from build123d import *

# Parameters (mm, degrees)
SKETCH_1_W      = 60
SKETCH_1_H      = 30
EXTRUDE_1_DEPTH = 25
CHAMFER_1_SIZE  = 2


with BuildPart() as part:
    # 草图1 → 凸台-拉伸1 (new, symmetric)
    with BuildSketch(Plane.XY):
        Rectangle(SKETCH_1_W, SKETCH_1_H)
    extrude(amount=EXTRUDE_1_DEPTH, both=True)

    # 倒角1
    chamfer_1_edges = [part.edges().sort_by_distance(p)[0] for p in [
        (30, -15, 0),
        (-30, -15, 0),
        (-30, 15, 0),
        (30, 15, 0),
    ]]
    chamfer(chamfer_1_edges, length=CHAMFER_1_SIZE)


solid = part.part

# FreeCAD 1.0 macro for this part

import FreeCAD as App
import Part
import Sketcher

V = App.Vector
Q = App.Units.Quantity


def edges_at(feature, points):
    """Names of the edges that pass closest to the given points."""
    edges = feature.Shape.Edges
    near = lambda p: min(range(len(edges)), key=lambda i: edges[i].distToShape(Part.Vertex(*p))[0])
    return sorted({f"Edge{near(p) + 1}" for p in points})


def add_polygon(sketch, points):
    """Adds a closed chain of lines whose ends are joined by coincident constraints."""
    first, n = sketch.GeometryCount, len(points)
    for a, b in zip(points, points[1:] + points[:1]):
        sketch.addGeometry(Part.LineSegment(App.Vector(*a, 0), App.Vector(*b, 0)), False)
    for i in range(n):
        sketch.addConstraint(Sketcher.Constraint("Coincident", first + i, 2, first + (i + 1) % n, 1))

doc = App.newDocument("Part")
body = doc.addObject("PartDesign::Body", "Body")

sketch1 = doc.addObject("Sketcher::SketchObject", "Sketch")
body.addObject(sketch1)
sketch1.AttachmentSupport = (doc.XY_Plane, [""])
sketch1.MapMode = "FlatFace"
add_polygon(sketch1, [(-30, 15), (-30, -15), (30, -15), (30, 15)])
sketch1.addConstraint(Sketcher.Constraint("Vertical", 0))
sketch1.addConstraint(Sketcher.Constraint("Horizontal", 1))
sketch1.addConstraint(Sketcher.Constraint("Vertical", 2))
sketch1.addConstraint(Sketcher.Constraint("Horizontal", 3))
sketch1.addConstraint(Sketcher.Constraint("Symmetric", 0, 2, 2, 2, -1, 1))
sketch1.addConstraint(Sketcher.Constraint("DistanceX", 1, 1, 1, 2, Q("60 mm")))
sketch1.addConstraint(Sketcher.Constraint("DistanceY", 0, 2, 0, 1, Q("30 mm")))
pad1 = doc.addObject("PartDesign::Pad", "Pad")
body.addObject(pad1)
pad1.Profile = sketch1
pad1.Length = 50
pad1.Midplane = True
doc.recompute()

chamfer = doc.addObject("PartDesign::Chamfer", "Chamfer")
body.addObject(chamfer)
chamfer.Base = (pad1, edges_at(pad1, [
    (30, -15, 0),
    (-30, -15, 0),
    (-30, 15, 0),
    (30, 15, 0),
]))
chamfer.Size = 2

doc.recompute()
